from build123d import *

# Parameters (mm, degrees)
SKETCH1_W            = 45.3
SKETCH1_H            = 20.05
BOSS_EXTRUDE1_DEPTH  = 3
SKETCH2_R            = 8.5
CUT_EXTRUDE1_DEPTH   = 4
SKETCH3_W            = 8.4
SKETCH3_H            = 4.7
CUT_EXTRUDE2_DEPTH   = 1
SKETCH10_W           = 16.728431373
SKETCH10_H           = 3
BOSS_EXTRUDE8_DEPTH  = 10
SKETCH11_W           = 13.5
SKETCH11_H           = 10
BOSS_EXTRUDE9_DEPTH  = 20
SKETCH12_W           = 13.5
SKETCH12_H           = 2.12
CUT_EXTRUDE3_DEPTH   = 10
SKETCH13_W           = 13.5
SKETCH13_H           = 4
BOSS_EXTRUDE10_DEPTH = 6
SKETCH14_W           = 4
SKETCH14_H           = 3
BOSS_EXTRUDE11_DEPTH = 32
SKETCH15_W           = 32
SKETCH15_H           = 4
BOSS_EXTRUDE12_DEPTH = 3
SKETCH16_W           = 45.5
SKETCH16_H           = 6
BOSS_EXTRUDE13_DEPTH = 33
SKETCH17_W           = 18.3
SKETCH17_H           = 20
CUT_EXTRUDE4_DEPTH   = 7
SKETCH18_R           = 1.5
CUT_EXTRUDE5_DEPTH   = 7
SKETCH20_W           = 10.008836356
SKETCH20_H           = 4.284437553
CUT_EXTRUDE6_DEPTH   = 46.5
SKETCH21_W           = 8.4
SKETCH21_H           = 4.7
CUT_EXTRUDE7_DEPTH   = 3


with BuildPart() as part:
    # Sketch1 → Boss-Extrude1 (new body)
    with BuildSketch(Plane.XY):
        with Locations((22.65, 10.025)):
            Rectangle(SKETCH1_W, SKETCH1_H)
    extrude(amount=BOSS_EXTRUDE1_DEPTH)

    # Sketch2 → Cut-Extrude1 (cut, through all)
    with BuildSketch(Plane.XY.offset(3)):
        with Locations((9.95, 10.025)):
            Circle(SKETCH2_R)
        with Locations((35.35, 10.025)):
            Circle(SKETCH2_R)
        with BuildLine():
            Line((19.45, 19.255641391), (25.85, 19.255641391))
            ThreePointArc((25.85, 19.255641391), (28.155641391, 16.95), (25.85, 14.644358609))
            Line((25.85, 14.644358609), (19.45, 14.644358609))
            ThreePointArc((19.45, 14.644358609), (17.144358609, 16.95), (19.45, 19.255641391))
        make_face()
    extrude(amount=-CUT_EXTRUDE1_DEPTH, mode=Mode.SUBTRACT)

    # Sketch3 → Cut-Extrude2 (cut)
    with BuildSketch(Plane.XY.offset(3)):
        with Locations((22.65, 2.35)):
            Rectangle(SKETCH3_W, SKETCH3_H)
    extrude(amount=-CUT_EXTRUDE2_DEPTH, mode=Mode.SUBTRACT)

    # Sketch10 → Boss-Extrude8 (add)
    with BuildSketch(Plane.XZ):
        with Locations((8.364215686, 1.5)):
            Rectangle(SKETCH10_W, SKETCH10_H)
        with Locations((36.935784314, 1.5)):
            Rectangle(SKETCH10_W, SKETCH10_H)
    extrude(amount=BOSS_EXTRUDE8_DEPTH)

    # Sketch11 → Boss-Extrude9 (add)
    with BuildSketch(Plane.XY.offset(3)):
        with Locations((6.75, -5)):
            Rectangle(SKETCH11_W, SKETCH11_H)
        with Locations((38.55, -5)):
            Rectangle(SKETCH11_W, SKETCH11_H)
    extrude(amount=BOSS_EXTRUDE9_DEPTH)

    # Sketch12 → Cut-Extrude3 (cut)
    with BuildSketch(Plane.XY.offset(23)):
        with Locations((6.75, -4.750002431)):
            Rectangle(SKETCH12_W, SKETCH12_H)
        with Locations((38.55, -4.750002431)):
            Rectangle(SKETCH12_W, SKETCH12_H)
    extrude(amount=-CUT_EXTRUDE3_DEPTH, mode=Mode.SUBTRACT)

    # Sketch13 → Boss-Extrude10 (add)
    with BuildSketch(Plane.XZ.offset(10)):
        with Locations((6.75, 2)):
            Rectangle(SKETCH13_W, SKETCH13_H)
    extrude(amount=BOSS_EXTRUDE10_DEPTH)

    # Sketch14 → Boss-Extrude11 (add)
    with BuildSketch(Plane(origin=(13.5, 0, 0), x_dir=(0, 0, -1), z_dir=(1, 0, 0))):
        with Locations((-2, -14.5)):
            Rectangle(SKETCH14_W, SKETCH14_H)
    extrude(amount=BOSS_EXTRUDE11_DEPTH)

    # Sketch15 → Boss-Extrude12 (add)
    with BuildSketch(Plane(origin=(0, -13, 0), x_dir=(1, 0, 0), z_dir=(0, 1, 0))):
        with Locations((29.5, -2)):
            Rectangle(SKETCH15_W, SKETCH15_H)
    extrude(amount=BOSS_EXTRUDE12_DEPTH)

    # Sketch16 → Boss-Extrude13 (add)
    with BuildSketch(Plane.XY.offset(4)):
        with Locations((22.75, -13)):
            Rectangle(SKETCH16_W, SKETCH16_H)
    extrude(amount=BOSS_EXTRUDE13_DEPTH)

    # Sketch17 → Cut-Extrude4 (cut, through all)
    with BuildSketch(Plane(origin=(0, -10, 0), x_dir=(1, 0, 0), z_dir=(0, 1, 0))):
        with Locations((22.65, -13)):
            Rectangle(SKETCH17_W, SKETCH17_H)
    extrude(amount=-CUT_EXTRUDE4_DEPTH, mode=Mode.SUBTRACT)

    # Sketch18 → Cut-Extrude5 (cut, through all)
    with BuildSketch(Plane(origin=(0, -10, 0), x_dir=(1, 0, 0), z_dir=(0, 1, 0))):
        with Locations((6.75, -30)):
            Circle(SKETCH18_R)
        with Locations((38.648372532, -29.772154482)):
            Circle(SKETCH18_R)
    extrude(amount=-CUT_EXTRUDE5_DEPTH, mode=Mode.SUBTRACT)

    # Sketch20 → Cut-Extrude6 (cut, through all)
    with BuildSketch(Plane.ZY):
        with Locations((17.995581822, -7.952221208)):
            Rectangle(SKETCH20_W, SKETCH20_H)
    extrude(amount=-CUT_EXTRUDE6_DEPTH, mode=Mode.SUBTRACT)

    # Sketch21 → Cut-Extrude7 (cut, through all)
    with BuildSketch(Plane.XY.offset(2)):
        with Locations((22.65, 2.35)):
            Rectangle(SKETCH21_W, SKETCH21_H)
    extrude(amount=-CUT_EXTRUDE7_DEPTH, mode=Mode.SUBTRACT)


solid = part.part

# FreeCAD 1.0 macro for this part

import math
import FreeCAD as App
import Part
import Sketcher

V = App.Vector


def add_polygon(sketch, points):
    """Adds a closed chain of lines whose ends are joined by coincident constraints."""
    first, n = sketch.GeometryCount, len(points)
    for a, b in zip(points, points[1:] + points[:1]):
        sketch.addGeometry(Part.LineSegment(App.Vector(*a, 0), App.Vector(*b, 0)), False)
    for i in range(n):
        sketch.addConstraint(Sketcher.Constraint("Coincident", first + i, 2, first + (i + 1) % n, 1))

doc = App.newDocument("Part")
body = doc.addObject("PartDesign::Body", "Body")

# Sketch on XY plane
sketch1 = body.newObject("Sketcher::SketchObject", "Sketch")
sketch1.AttachmentSupport = (doc.getObject("XY_Plane"), [""])
sketch1.MapMode = "FlatFace"
add_polygon(sketch1, [(0, 20.05), (0, 0), (45.3, 0), (45.3, 20.05)])  # lines 0-3
sketch1.addConstraint(Sketcher.Constraint("Vertical", 0))
sketch1.addConstraint(Sketcher.Constraint("Horizontal", 1))
sketch1.addConstraint(Sketcher.Constraint("Vertical", 2))
sketch1.addConstraint(Sketcher.Constraint("Horizontal", 3))
sketch1.addConstraint(Sketcher.Constraint("Coincident", 0, 2, -1, 1))
sketch1.addConstraint(Sketcher.Constraint("DistanceX", 1, 1, 1, 2, 45.3))
sketch1.addConstraint(Sketcher.Constraint("DistanceY", 0, 2, 0, 1, 20.05))
pad1 = body.newObject("PartDesign::Pad", "Pad")
pad1.Profile = sketch1
pad1.Length = 3

# Sketch on XY plane
sketch2 = body.newObject("Sketcher::SketchObject", "Sketch001")
sketch2.AttachmentSupport = (doc.getObject("XY_Plane"), [""])
sketch2.MapMode = "FlatFace"
sketch2.AttachmentOffset = App.Placement(V(0, 0, 3), App.Rotation())
sketch2.addGeometry(Part.Circle(V(9.95, 10.025, 0), V(0, 0, 1), 8.5), False)
sketch2.addGeometry(Part.Circle(V(35.35, 10.025, 0), V(0, 0, 1), 8.5), False)
sketch2.addGeometry(Part.LineSegment(V(25.85, 19.255641, 0), V(19.45, 19.255641, 0)), False)
sketch2.addGeometry(Part.ArcOfCircle(Part.Circle(V(19.45, 16.95, 0), V(0, 0, 1), 2.305641), math.radians(90), math.radians(270)), False)
sketch2.addGeometry(Part.LineSegment(V(19.45, 14.644359, 0), V(25.85, 14.644359, 0)), False)
sketch2.addGeometry(Part.ArcOfCircle(Part.Circle(V(25.85, 16.95, 0), V(0, 0, 1), 2.305641), math.radians(-90), math.radians(90)), False)
sketch2.addConstraint(Sketcher.Constraint("Tangent", 2, 2, 3, 1))
sketch2.addConstraint(Sketcher.Constraint("Tangent", 3, 2, 4, 1))
sketch2.addConstraint(Sketcher.Constraint("Tangent", 4, 2, 5, 1))
sketch2.addConstraint(Sketcher.Constraint("Tangent", 5, 2, 2, 1))
sketch2.addConstraint(Sketcher.Constraint("Horizontal", 2))
sketch2.addConstraint(Sketcher.Constraint("Horizontal", 4))
sketch2.addConstraint(Sketcher.Constraint("Equal", 0, 1))
sketch2.addConstraint(Sketcher.Constraint("Horizontal", 0, 3, 1, 3))
sketch2.addConstraint(Sketcher.Constraint("Diameter", 0, 17.0))
sketch2.addConstraint(Sketcher.Constraint("DistanceX", 2, 2, 2, 1, 6.4))
sketch2.addConstraint(Sketcher.Constraint("DistanceX", 0, 3, 1, 3, 25.4))
sketch2.addConstraint(Sketcher.Constraint("DistanceX", 0, 3, 3, 3, 9.5))
sketch2.addConstraint(Sketcher.Constraint("DistanceX", -1, 1, 0, 3, 9.95))
sketch2.addConstraint(Sketcher.Constraint("DistanceY", -1, 1, 3, 3, 16.95))
sketch2.addConstraint(Sketcher.Constraint("Radius", 3, 2.305641))
sketch2.addConstraint(Sketcher.Constraint("DistanceY", -1, 1, 0, 3, 10.025))
pocket1 = body.newObject("PartDesign::Pocket", "Pocket")
pocket1.Profile = sketch2
pocket1.Type = "ThroughAll"

# Sketch on XY plane
sketch3 = body.newObject("Sketcher::SketchObject", "Sketch002")
sketch3.AttachmentSupport = (doc.getObject("XY_Plane"), [""])
sketch3.MapMode = "FlatFace"
sketch3.AttachmentOffset = App.Placement(V(0, 0, 3), App.Rotation())
add_polygon(sketch3, [(18.45, 4.7), (18.45, 0), (26.85, 0), (26.85, 4.7)])  # lines 0-3
sketch3.addConstraint(Sketcher.Constraint("Vertical", 0))
sketch3.addConstraint(Sketcher.Constraint("Horizontal", 1))
sketch3.addConstraint(Sketcher.Constraint("Vertical", 2))
sketch3.addConstraint(Sketcher.Constraint("Horizontal", 3))
sketch3.addConstraint(Sketcher.Constraint("PointOnObject", 0, 2, -1))
sketch3.addConstraint(Sketcher.Constraint("DistanceX", 1, 1, 1, 2, 8.4))
sketch3.addConstraint(Sketcher.Constraint("DistanceY", 0, 2, 0, 1, 4.7))
sketch3.addConstraint(Sketcher.Constraint("DistanceX", -1, 1, 0, 2, 18.45))
pocket2 = body.newObject("PartDesign::Pocket", "Pocket001")
pocket2.Profile = sketch3
pocket2.Length = 1

# Sketch on XZ plane
sketch4 = body.newObject("Sketcher::SketchObject", "Sketch003")
sketch4.AttachmentSupport = (doc.getObject("XZ_Plane"), [""])
sketch4.MapMode = "FlatFace"
add_polygon(sketch4, [(0, 3), (0, 0), (16.728431, 0), (16.728431, 3)])  # lines 0-3
add_polygon(sketch4, [(28.571569, 3), (28.571569, 0), (45.3, 0), (45.3, 3)])  # lines 4-7
sketch4.addConstraint(Sketcher.Constraint("Vertical", 0))
sketch4.addConstraint(Sketcher.Constraint("Horizontal", 1))
sketch4.addConstraint(Sketcher.Constraint("Vertical", 2))
sketch4.addConstraint(Sketcher.Constraint("Horizontal", 3))
sketch4.addConstraint(Sketcher.Constraint("Vertical", 4))
sketch4.addConstraint(Sketcher.Constraint("Horizontal", 5))
sketch4.addConstraint(Sketcher.Constraint("Vertical", 6))
sketch4.addConstraint(Sketcher.Constraint("Horizontal", 7))
sketch4.addConstraint(Sketcher.Constraint("Coincident", 0, 2, -1, 1))
sketch4.addConstraint(Sketcher.Constraint("PointOnObject", 4, 2, -1))
sketch4.addConstraint(Sketcher.Constraint("Horizontal", 3, 2, 6, 2))
sketch4.addConstraint(Sketcher.Constraint("Equal", 3, 5))
sketch4.addConstraint(Sketcher.Constraint("DistanceY", 0, 2, 0, 1, 3.0))
sketch4.addConstraint(Sketcher.Constraint("DistanceX", -1, 1, 5, 2, 45.3))
sketch4.addConstraint(Sketcher.Constraint("DistanceX", 1, 1, 1, 2, 16.728431))
pad2 = body.newObject("PartDesign::Pad", "Pad001")
pad2.Profile = sketch4
pad2.Length = 10

# Sketch on XY plane
sketch5 = body.newObject("Sketcher::SketchObject", "Sketch004")
sketch5.AttachmentSupport = (doc.getObject("XY_Plane"), [""])
sketch5.MapMode = "FlatFace"
sketch5.AttachmentOffset = App.Placement(V(0, 0, 3), App.Rotation())
add_polygon(sketch5, [(0, 0), (0, -10), (13.5, -10), (13.5, 0)])  # lines 0-3
add_polygon(sketch5, [(31.8, 0), (31.8, -10), (45.3, -10), (45.3, 0)])  # lines 4-7
sketch5.addConstraint(Sketcher.Constraint("Vertical", 0))
sketch5.addConstraint(Sketcher.Constraint("Horizontal", 1))
sketch5.addConstraint(Sketcher.Constraint("Vertical", 2))
sketch5.addConstraint(Sketcher.Constraint("Horizontal", 3))
sketch5.addConstraint(Sketcher.Constraint("Vertical", 4))
sketch5.addConstraint(Sketcher.Constraint("Horizontal", 5))
sketch5.addConstraint(Sketcher.Constraint("Vertical", 6))
sketch5.addConstraint(Sketcher.Constraint("Horizontal", 7))
sketch5.addConstraint(Sketcher.Constraint("Coincident", 3, 2, -1, 1))
sketch5.addConstraint(Sketcher.Constraint("PointOnObject", 6, 2, -1))
sketch5.addConstraint(Sketcher.Constraint("Horizontal", 1, 2, 4, 2))
sketch5.addConstraint(Sketcher.Constraint("Equal", 3, 5))
sketch5.addConstraint(Sketcher.Constraint("DistanceY", 0, 2, 0, 1, 10.0))
sketch5.addConstraint(Sketcher.Constraint("DistanceX", 1, 1, 1, 2, 13.5))
sketch5.addConstraint(Sketcher.Constraint("DistanceX", -1, 1, 4, 2, 31.8))
pad3 = body.newObject("PartDesign::Pad", "Pad002")
pad3.Profile = sketch5
pad3.Length = 20

# Sketch on XY plane
sketch6 = body.newObject("Sketcher::SketchObject", "Sketch005")
sketch6.AttachmentSupport = (doc.getObject("XY_Plane"), [""])
sketch6.MapMode = "FlatFace"
sketch6.AttachmentOffset = App.Placement(V(0, 0, 23), App.Rotation())
add_polygon(sketch6, [(0, -3.690002), (0, -5.810002), (13.5, -5.810002), (13.5, -3.690002)])  # lines 0-3
add_polygon(sketch6, [(31.8, -3.690002), (31.8, -5.810002), (45.3, -5.810002), (45.3, -3.690002)])  # lines 4-7
sketch6.addConstraint(Sketcher.Constraint("Vertical", 0))
sketch6.addConstraint(Sketcher.Constraint("Horizontal", 1))
sketch6.addConstraint(Sketcher.Constraint("Vertical", 2))
sketch6.addConstraint(Sketcher.Constraint("Horizontal", 3))
sketch6.addConstraint(Sketcher.Constraint("Vertical", 4))
sketch6.addConstraint(Sketcher.Constraint("Horizontal", 5))
sketch6.addConstraint(Sketcher.Constraint("Vertical", 6))
sketch6.addConstraint(Sketcher.Constraint("Horizontal", 7))
sketch6.addConstraint(Sketcher.Constraint("PointOnObject", 0, 2, -2))
sketch6.addConstraint(Sketcher.Constraint("Horizontal", 1, 2, 4, 2))
sketch6.addConstraint(Sketcher.Constraint("Horizontal", 3, 2, 6, 2))
sketch6.addConstraint(Sketcher.Constraint("Equal", 3, 5))
sketch6.addConstraint(Sketcher.Constraint("DistanceX", 1, 1, 1, 2, 13.5))
sketch6.addConstraint(Sketcher.Constraint("DistanceY", 0, 2, 0, 1, 2.12))
sketch6.addConstraint(Sketcher.Constraint("DistanceX", -1, 1, 4, 2, 31.8))
sketch6.addConstraint(Sketcher.Constraint("DistanceY", 0, 2, -1, 1, 5.810002))
pocket3 = body.newObject("PartDesign::Pocket", "Pocket002")
pocket3.Profile = sketch6
pocket3.Length = 10

# Sketch on XZ plane
sketch7 = body.newObject("Sketcher::SketchObject", "Sketch006")
sketch7.AttachmentSupport = (doc.getObject("XZ_Plane"), [""])
sketch7.MapMode = "FlatFace"
sketch7.AttachmentOffset = App.Placement(V(0, 0, 10), App.Rotation())
add_polygon(sketch7, [(0, 4), (0, 0), (13.5, 0), (13.5, 4)])  # lines 0-3
sketch7.addConstraint(Sketcher.Constraint("Vertical", 0))
sketch7.addConstraint(Sketcher.Constraint("Horizontal", 1))
sketch7.addConstraint(Sketcher.Constraint("Vertical", 2))
sketch7.addConstraint(Sketcher.Constraint("Horizontal", 3))
sketch7.addConstraint(Sketcher.Constraint("Coincident", 0, 2, -1, 1))
sketch7.addConstraint(Sketcher.Constraint("DistanceY", 0, 2, 0, 1, 4.0))
sketch7.addConstraint(Sketcher.Constraint("DistanceX", 1, 1, 1, 2, 13.5))
pad4 = body.newObject("PartDesign::Pad", "Pad003")
pad4.Profile = sketch7
pad4.Length = 6

# Sketch on YZ plane
sketch8 = body.newObject("Sketcher::SketchObject", "Sketch007")
sketch8.AttachmentSupport = (doc.getObject("YZ_Plane"), [""])
sketch8.MapMode = "FlatFace"
sketch8.AttachmentOffset = App.Placement(V(0, 0, 13.5), App.Rotation())
add_polygon(sketch8, [(-13, 4), (-16, 4), (-16, 0), (-13, 0)])  # lines 0-3
sketch8.addConstraint(Sketcher.Constraint("Horizontal", 0))
sketch8.addConstraint(Sketcher.Constraint("Vertical", 1))
sketch8.addConstraint(Sketcher.Constraint("Horizontal", 2))
sketch8.addConstraint(Sketcher.Constraint("Vertical", 3))
sketch8.addConstraint(Sketcher.Constraint("PointOnObject", 1, 2, -1))
sketch8.addConstraint(Sketcher.Constraint("DistanceX", 0, 2, 0, 1, 3.0))
sketch8.addConstraint(Sketcher.Constraint("DistanceY", 1, 2, 1, 1, 4.0))
sketch8.addConstraint(Sketcher.Constraint("DistanceX", 0, 2, -1, 1, 16.0))
pad5 = body.newObject("PartDesign::Pad", "Pad004")
pad5.Profile = sketch8
pad5.Length = 32

# Sketch on XZ plane
sketch9 = body.newObject("Sketcher::SketchObject", "Sketch008")
sketch9.AttachmentSupport = (doc.getObject("XZ_Plane"), [""])
sketch9.MapMode = "FlatFace"
sketch9.AttachmentOffset = App.Placement(V(0, 0, 13), App.Rotation())
add_polygon(sketch9, [(13.5, 0), (13.5, 4), (45.5, 4), (45.5, 0)])  # lines 0-3
sketch9.addConstraint(Sketcher.Constraint("Vertical", 0))
sketch9.addConstraint(Sketcher.Constraint("Horizontal", 1))
sketch9.addConstraint(Sketcher.Constraint("Vertical", 2))
sketch9.addConstraint(Sketcher.Constraint("Horizontal", 3))
sketch9.addConstraint(Sketcher.Constraint("PointOnObject", 2, 2, -1))
sketch9.addConstraint(Sketcher.Constraint("DistanceX", 1, 1, 1, 2, 32.0))
sketch9.addConstraint(Sketcher.Constraint("DistanceY", 0, 1, 0, 2, 4.0))
sketch9.addConstraint(Sketcher.Constraint("DistanceX", -1, 1, 0, 2, 13.5))
pad6 = body.newObject("PartDesign::Pad", "Pad005")
pad6.Profile = sketch9
pad6.Length = 3
pad6.Reversed = True

# Sketch on XY plane
sketch10 = body.newObject("Sketcher::SketchObject", "Sketch009")
sketch10.AttachmentSupport = (doc.getObject("XY_Plane"), [""])
sketch10.MapMode = "FlatFace"
sketch10.AttachmentOffset = App.Placement(V(0, 0, 4), App.Rotation())
add_polygon(sketch10, [(0, -10), (0, -16), (45.5, -16), (45.5, -10)])  # lines 0-3
sketch10.addConstraint(Sketcher.Constraint("Vertical", 0))
sketch10.addConstraint(Sketcher.Constraint("Horizontal", 1))
sketch10.addConstraint(Sketcher.Constraint("Vertical", 2))
sketch10.addConstraint(Sketcher.Constraint("Horizontal", 3))
sketch10.addConstraint(Sketcher.Constraint("PointOnObject", 0, 2, -2))
sketch10.addConstraint(Sketcher.Constraint("DistanceY", 0, 2, 0, 1, 6.0))
sketch10.addConstraint(Sketcher.Constraint("DistanceX", 1, 1, 1, 2, 45.5))
sketch10.addConstraint(Sketcher.Constraint("DistanceY", 0, 2, -1, 1, 16.0))
pad7 = body.newObject("PartDesign::Pad", "Pad006")
pad7.Profile = sketch10
pad7.Length = 33

# Sketch on XZ plane
sketch11 = body.newObject("Sketcher::SketchObject", "Sketch010")
sketch11.AttachmentSupport = (doc.getObject("XZ_Plane"), [""])
sketch11.MapMode = "FlatFace"
sketch11.AttachmentOffset = App.Placement(V(0, 0, 10), App.Rotation())
add_polygon(sketch11, [(13.5, 3), (13.5, 23), (31.8, 23), (31.8, 3)])  # lines 0-3
sketch11.addConstraint(Sketcher.Constraint("Vertical", 0))
sketch11.addConstraint(Sketcher.Constraint("Horizontal", 1))
sketch11.addConstraint(Sketcher.Constraint("Vertical", 2))
sketch11.addConstraint(Sketcher.Constraint("Horizontal", 3))
sketch11.addConstraint(Sketcher.Constraint("DistanceY", 0, 1, 0, 2, 20.0))
sketch11.addConstraint(Sketcher.Constraint("DistanceX", 1, 1, 1, 2, 18.3))
sketch11.addConstraint(Sketcher.Constraint("DistanceY", -1, 1, 0, 2, 23.0))
sketch11.addConstraint(Sketcher.Constraint("DistanceX", -1, 1, 0, 2, 13.5))
pocket4 = body.newObject("PartDesign::Pocket", "Pocket003")
pocket4.Profile = sketch11
pocket4.Type = "ThroughAll"
pocket4.Reversed = True

# Sketch on XZ plane
sketch12 = body.newObject("Sketcher::SketchObject", "Sketch011")
sketch12.AttachmentSupport = (doc.getObject("XZ_Plane"), [""])
sketch12.MapMode = "FlatFace"
sketch12.AttachmentOffset = App.Placement(V(0, 0, 10), App.Rotation())
sketch12.addGeometry(Part.Circle(V(6.75, 30, 0), V(0, 0, 1), 1.5), False)
sketch12.addGeometry(Part.Circle(V(38.648373, 29.772154, 0), V(0, 0, 1), 1.5), False)
sketch12.addConstraint(Sketcher.Constraint("Equal", 0, 1))
sketch12.addConstraint(Sketcher.Constraint("Diameter", 0, 3.0))
sketch12.addConstraint(Sketcher.Constraint("DistanceY", -1, 1, 0, 3, 30.0))
sketch12.addConstraint(Sketcher.Constraint("DistanceX", -1, 1, 0, 3, 6.75))
sketch12.addConstraint(Sketcher.Constraint("DistanceX", -1, 1, 1, 3, 38.648373))
sketch12.addConstraint(Sketcher.Constraint("DistanceY", -1, 1, 1, 3, 29.772154))
pocket5 = body.newObject("PartDesign::Pocket", "Pocket004")
pocket5.Profile = sketch12
pocket5.Type = "ThroughAll"
pocket5.Reversed = True

# Sketch on YZ plane
sketch13 = body.newObject("Sketcher::SketchObject", "Sketch012")
sketch13.AttachmentSupport = (doc.getObject("YZ_Plane"), [""])
sketch13.MapMode = "FlatFace"
add_polygon(sketch13, [(-5.810002, 12.991164), (-10.09444, 12.991164), (-10.09444, 23), (-5.810002, 23)])  # lines 0-3
sketch13.addConstraint(Sketcher.Constraint("Horizontal", 0))
sketch13.addConstraint(Sketcher.Constraint("Vertical", 1))
sketch13.addConstraint(Sketcher.Constraint("Horizontal", 2))
sketch13.addConstraint(Sketcher.Constraint("Vertical", 3))
sketch13.addConstraint(Sketcher.Constraint("DistanceY", -1, 1, 1, 2, 23.0))
sketch13.addConstraint(Sketcher.Constraint("DistanceX", 0, 2, 0, 1, 4.284438))
sketch13.addConstraint(Sketcher.Constraint("DistanceY", 1, 1, 1, 2, 10.008836))
sketch13.addConstraint(Sketcher.Constraint("DistanceX", 0, 2, -1, 1, 10.09444))
pocket6 = body.newObject("PartDesign::Pocket", "Pocket005")
pocket6.Profile = sketch13
pocket6.Type = "ThroughAll"
pocket6.Reversed = True

# Sketch on XY plane
sketch14 = body.newObject("Sketcher::SketchObject", "Sketch013")
sketch14.AttachmentSupport = (doc.getObject("XY_Plane"), [""])
sketch14.MapMode = "FlatFace"
sketch14.AttachmentOffset = App.Placement(V(0, 0, 2), App.Rotation())
add_polygon(sketch14, [(18.45, 4.7), (18.45, 0), (26.85, 0), (26.85, 4.7)])  # lines 0-3
sketch14.addConstraint(Sketcher.Constraint("Vertical", 0))
sketch14.addConstraint(Sketcher.Constraint("Horizontal", 1))
sketch14.addConstraint(Sketcher.Constraint("Vertical", 2))
sketch14.addConstraint(Sketcher.Constraint("Horizontal", 3))
sketch14.addConstraint(Sketcher.Constraint("PointOnObject", 0, 2, -1))
sketch14.addConstraint(Sketcher.Constraint("DistanceX", 1, 1, 1, 2, 8.4))
sketch14.addConstraint(Sketcher.Constraint("DistanceY", 0, 2, 0, 1, 4.7))
sketch14.addConstraint(Sketcher.Constraint("DistanceX", -1, 1, 0, 2, 18.45))
pocket7 = body.newObject("PartDesign::Pocket", "Pocket006")
pocket7.Profile = sketch14
pocket7.Type = "ThroughAll"

doc.recompute()
